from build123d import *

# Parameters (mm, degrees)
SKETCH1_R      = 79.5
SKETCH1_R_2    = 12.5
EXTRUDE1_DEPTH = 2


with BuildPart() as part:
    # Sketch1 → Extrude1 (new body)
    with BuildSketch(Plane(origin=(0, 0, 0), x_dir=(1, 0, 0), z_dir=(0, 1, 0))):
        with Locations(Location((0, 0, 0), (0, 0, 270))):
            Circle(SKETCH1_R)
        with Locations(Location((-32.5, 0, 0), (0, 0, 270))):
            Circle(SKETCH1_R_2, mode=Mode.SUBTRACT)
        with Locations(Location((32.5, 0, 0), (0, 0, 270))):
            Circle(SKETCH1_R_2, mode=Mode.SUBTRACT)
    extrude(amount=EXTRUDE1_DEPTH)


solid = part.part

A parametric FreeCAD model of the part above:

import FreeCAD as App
import Part
import Sketcher

doc = App.newDocument("Part")
body = doc.addObject("PartDesign::Body", "Body")

# Sketch on XZ plane
sketch1 = doc.addObject("Sketcher::SketchObject", "Sketch")
body.addObject(sketch1)
sketch1.AttachmentSupport = (doc.XZ_Plane, [""])
sketch1.MapMode = "FlatFace"
sketch1.addGeometry(Part.Circle(App.Vector(0, 0, 0), App.Vector(0, 0, 1), 80), False)
sketch1.addGeometry(Part.Circle(App.Vector(-32, 0, 0), App.Vector(0, 0, 1), 12), False)
sketch1.addGeometry(Part.Circle(App.Vector(32, 0, 0), App.Vector(0, 0, 1), 12), False)
sketch1.addConstraint(Sketcher.Constraint("Coincident", 0, 3, -1, 1))
sketch1.addConstraint(Sketcher.Constraint("Equal", 1, 2))
sketch1.addConstraint(Sketcher.Constraint("Symmetric", 1, 3, 2, 3, -1, 1))
sketch1.addConstraint(Sketcher.Constraint("PointOnObject", 1, 3, -1))
sketch1.addConstraint(Sketcher.Constraint("Diameter", 0, 159.0))
sketch1.addConstraint(Sketcher.Constraint("Diameter", 1, 25.0))
sketch1.addConstraint(Sketcher.Constraint("DistanceX", 1, 3, 2, 3, 65.0))
pad1 = doc.addObject("PartDesign::Pad", "Pad")
body.addObject(pad1)
pad1.Profile = sketch1
pad1.Length = 2
pad1.Reversed = True

doc.recompute()
